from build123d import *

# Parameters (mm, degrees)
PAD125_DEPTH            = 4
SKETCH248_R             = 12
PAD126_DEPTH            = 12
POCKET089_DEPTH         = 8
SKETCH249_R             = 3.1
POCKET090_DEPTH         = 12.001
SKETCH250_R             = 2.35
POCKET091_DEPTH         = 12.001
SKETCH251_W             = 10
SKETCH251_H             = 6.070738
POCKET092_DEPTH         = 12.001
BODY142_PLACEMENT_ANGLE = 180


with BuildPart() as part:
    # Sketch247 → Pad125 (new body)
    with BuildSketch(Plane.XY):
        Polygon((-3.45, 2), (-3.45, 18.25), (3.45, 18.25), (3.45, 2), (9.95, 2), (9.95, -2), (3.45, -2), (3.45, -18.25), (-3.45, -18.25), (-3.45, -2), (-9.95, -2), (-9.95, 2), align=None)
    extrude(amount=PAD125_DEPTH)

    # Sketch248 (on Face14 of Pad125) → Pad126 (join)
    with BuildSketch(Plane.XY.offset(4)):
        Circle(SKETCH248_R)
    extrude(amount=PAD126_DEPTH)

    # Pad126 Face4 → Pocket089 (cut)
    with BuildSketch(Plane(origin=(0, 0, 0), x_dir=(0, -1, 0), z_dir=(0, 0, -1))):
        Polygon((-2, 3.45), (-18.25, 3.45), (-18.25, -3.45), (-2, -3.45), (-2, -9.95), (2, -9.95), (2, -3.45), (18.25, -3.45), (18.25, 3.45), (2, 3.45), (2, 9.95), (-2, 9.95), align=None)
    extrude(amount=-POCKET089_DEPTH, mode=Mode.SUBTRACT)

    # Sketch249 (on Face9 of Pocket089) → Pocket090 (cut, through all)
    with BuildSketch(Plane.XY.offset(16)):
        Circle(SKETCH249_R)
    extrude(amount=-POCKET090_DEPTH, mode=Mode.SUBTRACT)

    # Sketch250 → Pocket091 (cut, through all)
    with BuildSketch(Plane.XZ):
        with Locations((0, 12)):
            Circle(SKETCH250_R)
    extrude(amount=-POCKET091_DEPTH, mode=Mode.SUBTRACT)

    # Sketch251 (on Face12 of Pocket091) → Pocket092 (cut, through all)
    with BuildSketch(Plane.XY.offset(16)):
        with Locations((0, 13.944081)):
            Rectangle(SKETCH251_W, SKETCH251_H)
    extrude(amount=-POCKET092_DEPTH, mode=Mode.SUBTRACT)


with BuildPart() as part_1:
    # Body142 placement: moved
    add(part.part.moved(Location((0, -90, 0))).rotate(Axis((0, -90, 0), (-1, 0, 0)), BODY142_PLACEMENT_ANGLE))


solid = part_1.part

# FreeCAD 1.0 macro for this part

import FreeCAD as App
import Part
import Sketcher

doc = App.newDocument("Part")
body = doc.addObject("PartDesign::Body", "Body")

# Sketch on XY plane
sketch1 = body.newObject("Sketcher::SketchObject", "Sketch")
sketch1.AttachmentSupport = (doc.getObject("XY_Plane"), [""])
sketch1.MapMode = "FlatFace"
sketch1.addGeometry(Part.LineSegment(App.Vector(-3.5, 18.2, 0), App.Vector(-3.5, 2, 0)), False)
sketch1.addGeometry(Part.LineSegment(App.Vector(-3.5, 2, 0), App.Vector(-9.9, 2, 0)), False)
sketch1.addGeometry(Part.LineSegment(App.Vector(-9.9, 2, 0), App.Vector(-9.9, -2, 0)), False)
sketch1.addGeometry(Part.LineSegment(App.Vector(-9.9, -2, 0), App.Vector(-3.5, -2, 0)), False)
sketch1.addGeometry(Part.LineSegment(App.Vector(-3.5, -2, 0), App.Vector(-3.5, -18.2, 0)), False)
sketch1.addGeometry(Part.LineSegment(App.Vector(-3.5, -18.2, 0), App.Vector(3.5, -18.2, 0)), False)
sketch1.addGeometry(Part.LineSegment(App.Vector(3.5, -18.2, 0), App.Vector(3.5, -2, 0)), False)
sketch1.addGeometry(Part.LineSegment(App.Vector(3.5, -2, 0), App.Vector(9.9, -2, 0)), False)
sketch1.addGeometry(Part.LineSegment(App.Vector(9.9, -2, 0), App.Vector(9.9, 2, 0)), False)
sketch1.addGeometry(Part.LineSegment(App.Vector(9.9, 2, 0), App.Vector(3.5, 2, 0)), False)
sketch1.addGeometry(Part.LineSegment(App.Vector(3.5, 2, 0), App.Vector(3.5, 18.2, 0)), False)
sketch1.addGeometry(Part.LineSegment(App.Vector(3.5, 18.2, 0), App.Vector(-3.5, 18.2, 0)), False)
sketch1.addConstraint(Sketcher.Constraint("Coincident", 0, 2, 1, 1))
sketch1.addConstraint(Sketcher.Constraint("Coincident", 1, 2, 2, 1))
sketch1.addConstraint(Sketcher.Constraint("Coincident", 2, 2, 3, 1))
sketch1.addConstraint(Sketcher.Constraint("Coincident", 3, 2, 4, 1))
sketch1.addConstraint(Sketcher.Constraint("Coincident", 4, 2, 5, 1))
sketch1.addConstraint(Sketcher.Constraint("Coincident", 5, 2, 6, 1))
sketch1.addConstraint(Sketcher.Constraint("Coincident", 6, 2, 7, 1))
sketch1.addConstraint(Sketcher.Constraint("Coincident", 7, 2, 8, 1))
sketch1.addConstraint(Sketcher.Constraint("Coincident", 8, 2, 9, 1))
sketch1.addConstraint(Sketcher.Constraint("Coincident", 9, 2, 10, 1))
sketch1.addConstraint(Sketcher.Constraint("Coincident", 10, 2, 11, 1))
sketch1.addConstraint(Sketcher.Constraint("Coincident", 11, 2, 0, 1))
sketch1.addConstraint(Sketcher.Constraint("Vertical", 0))
sketch1.addConstraint(Sketcher.Constraint("Horizontal", 1))
sketch1.addConstraint(Sketcher.Constraint("Vertical", 2))
sketch1.addConstraint(Sketcher.Constraint("Horizontal", 3))
sketch1.addConstraint(Sketcher.Constraint("Vertical", 4))
sketch1.addConstraint(Sketcher.Constraint("Horizontal", 5))
sketch1.addConstraint(Sketcher.Constraint("Vertical", 6))
sketch1.addConstraint(Sketcher.Constraint("Horizontal", 7))
sketch1.addConstraint(Sketcher.Constraint("Vertical", 8))
sketch1.addConstraint(Sketcher.Constraint("Horizontal", 9))
sketch1.addConstraint(Sketcher.Constraint("Vertical", 10))
sketch1.addConstraint(Sketcher.Constraint("Horizontal", 11))
sketch1.addConstraint(Sketcher.Constraint("Symmetric", 0, 2, 6, 2, -1, 1))
sketch1.addConstraint(Sketcher.Constraint("Symmetric", 2, 2, 8, 2, -1, 1))
sketch1.addConstraint(Sketcher.Constraint("Symmetric", 4, 2, 10, 2, -1, 1))
sketch1.addConstraint(Sketcher.Constraint("Symmetric", 3, 2, 6, 2, -2))
sketch1.addConstraint(Sketcher.Constraint("DistanceY", 2, 2, 2, 1, 4.0))
sketch1.addConstraint(Sketcher.Constraint("DistanceX", 1, 2, 1, 1, 6.5))
sketch1.addConstraint(Sketcher.Constraint("DistanceX", 5, 1, 5, 2, 6.9))
sketch1.addConstraint(Sketcher.Constraint("DistanceY", 0, 2, 0, 1, 16.25))
pad1 = body.newObject("PartDesign::Pad", "Pad")
pad1.Profile = sketch1
pad1.Length = 4

# Sketch on XY plane
sketch2 = body.newObject("Sketcher::SketchObject", "Sketch001")
sketch2.AttachmentSupport = (doc.getObject("XY_Plane"), [""])
sketch2.MapMode = "FlatFace"
sketch2.AttachmentOffset = App.Placement(App.Vector(0, 0, 4), App.Rotation())
sketch2.addGeometry(Part.Circle(App.Vector(0, 0, 0), App.Vector(0, 0, 1), 12), False)
sketch2.addConstraint(Sketcher.Constraint("Coincident", 0, 3, -1, 1))
sketch2.addConstraint(Sketcher.Constraint("Diameter", 0, 24.0))
pad2 = body.newObject("PartDesign::Pad", "Pad001")
pad2.Profile = sketch2
pad2.Length = 12

# Sketch on XY plane
sketch3 = body.newObject("Sketcher::SketchObject", "Sketch002")
sketch3.AttachmentSupport = (doc.getObject("XY_Plane"), [""])
sketch3.MapMode = "FlatFace"
sketch3.addGeometry(Part.LineSegment(App.Vector(-3.5, 2, 0), App.Vector(-3.5, 18.2, 0)), False)
sketch3.addGeometry(Part.LineSegment(App.Vector(-3.5, 18.2, 0), App.Vector(3.5, 18.2, 0)), False)
sketch3.addGeometry(Part.LineSegment(App.Vector(3.5, 18.2, 0), App.Vector(3.5, 2, 0)), False)
sketch3.addGeometry(Part.LineSegment(App.Vector(3.5, 2, 0), App.Vector(9.9, 2, 0)), False)
sketch3.addGeometry(Part.LineSegment(App.Vector(9.9, 2, 0), App.Vector(9.9, -2, 0)), False)
sketch3.addGeometry(Part.LineSegment(App.Vector(9.9, -2, 0), App.Vector(3.5, -2, 0)), False)
sketch3.addGeometry(Part.LineSegment(App.Vector(3.5, -2, 0), App.Vector(3.5, -18.2, 0)), False)
sketch3.addGeometry(Part.LineSegment(App.Vector(3.5, -18.2, 0), App.Vector(-3.5, -18.2, 0)), False)
sketch3.addGeometry(Part.LineSegment(App.Vector(-3.5, -18.2, 0), App.Vector(-3.5, -2, 0)), False)
sketch3.addGeometry(Part.LineSegment(App.Vector(-3.5, -2, 0), App.Vector(-9.9, -2, 0)), False)
sketch3.addGeometry(Part.LineSegment(App.Vector(-9.9, -2, 0), App.Vector(-9.9, 2, 0)), False)
sketch3.addGeometry(Part.LineSegment(App.Vector(-9.9, 2, 0), App.Vector(-3.5, 2, 0)), False)
sketch3.addConstraint(Sketcher.Constraint("Coincident", 0, 2, 1, 1))
sketch3.addConstraint(Sketcher.Constraint("Coincident", 1, 2, 2, 1))
sketch3.addConstraint(Sketcher.Constraint("Coincident", 2, 2, 3, 1))
sketch3.addConstraint(Sketcher.Constraint("Coincident", 3, 2, 4, 1))
sketch3.addConstraint(Sketcher.Constraint("Coincident", 4, 2, 5, 1))
sketch3.addConstraint(Sketcher.Constraint("Coincident", 5, 2, 6, 1))
sketch3.addConstraint(Sketcher.Constraint("Coincident", 6, 2, 7, 1))
sketch3.addConstraint(Sketcher.Constraint("Coincident", 7, 2, 8, 1))
sketch3.addConstraint(Sketcher.Constraint("Coincident", 8, 2, 9, 1))
sketch3.addConstraint(Sketcher.Constraint("Coincident", 9, 2, 10, 1))
sketch3.addConstraint(Sketcher.Constraint("Coincident", 10, 2, 11, 1))
sketch3.addConstraint(Sketcher.Constraint("Coincident", 11, 2, 0, 1))
sketch3.addConstraint(Sketcher.Constraint("Vertical", 0))
sketch3.addConstraint(Sketcher.Constraint("Horizontal", 1))
sketch3.addConstraint(Sketcher.Constraint("Vertical", 2))
sketch3.addConstraint(Sketcher.Constraint("Horizontal", 3))
sketch3.addConstraint(Sketcher.Constraint("Vertical", 4))
sketch3.addConstraint(Sketcher.Constraint("Horizontal", 5))
sketch3.addConstraint(Sketcher.Constraint("Vertical", 6))
sketch3.addConstraint(Sketcher.Constraint("Horizontal", 7))
sketch3.addConstraint(Sketcher.Constraint("Vertical", 8))
sketch3.addConstraint(Sketcher.Constraint("Horizontal", 9))
sketch3.addConstraint(Sketcher.Constraint("Vertical", 10))
sketch3.addConstraint(Sketcher.Constraint("Horizontal", 11))
sketch3.addConstraint(Sketcher.Constraint("Symmetric", 0, 2, 6, 2, -1, 1))
sketch3.addConstraint(Sketcher.Constraint("Symmetric", 2, 2, 8, 2, -1, 1))
sketch3.addConstraint(Sketcher.Constraint("Symmetric", 4, 2, 10, 2, -1, 1))
sketch3.addConstraint(Sketcher.Constraint("Symmetric", 5, 2, 8, 2, -2))
sketch3.addConstraint(Sketcher.Constraint("DistanceY", 4, 2, 4, 1, 4.0))
sketch3.addConstraint(Sketcher.Constraint("DistanceX", 1, 1, 1, 2, 6.9))
sketch3.addConstraint(Sketcher.Constraint("DistanceX", 3, 1, 3, 2, 6.5))
sketch3.addConstraint(Sketcher.Constraint("DistanceY", 0, 1, 0, 2, 16.25))
pocket1 = body.newObject("PartDesign::Pocket", "Pocket")
pocket1.Profile = sketch3
pocket1.Length = 8
pocket1.Reversed = True

# Sketch on XY plane
sketch4 = body.newObject("Sketcher::SketchObject", "Sketch003")
sketch4.AttachmentSupport = (doc.getObject("XY_Plane"), [""])
sketch4.MapMode = "FlatFace"
sketch4.AttachmentOffset = App.Placement(App.Vector(0, 0, 16), App.Rotation())
sketch4.addGeometry(Part.Circle(App.Vector(0, 0, 0), App.Vector(0, 0, 1), 3.1), False)
sketch4.addConstraint(Sketcher.Constraint("Coincident", 0, 3, -1, 1))
sketch4.addConstraint(Sketcher.Constraint("Diameter", 0, 6.2))
pocket2 = body.newObject("PartDesign::Pocket", "Pocket001")
pocket2.Profile = sketch4
pocket2.Type = "ThroughAll"

# Sketch on XZ plane
sketch5 = body.newObject("Sketcher::SketchObject", "Sketch004")
sketch5.AttachmentSupport = (doc.getObject("XZ_Plane"), [""])
sketch5.MapMode = "FlatFace"
sketch5.addGeometry(Part.Circle(App.Vector(0, 12, 0), App.Vector(0, 0, 1), 2.4), False)
sketch5.addConstraint(Sketcher.Constraint("PointOnObject", 0, 3, -2))
sketch5.addConstraint(Sketcher.Constraint("Diameter", 0, 4.7))
sketch5.addConstraint(Sketcher.Constraint("DistanceY", -1, 1, 0, 3, 12.0))
pocket3 = body.newObject("PartDesign::Pocket", "Pocket002")
pocket3.Profile = sketch5
pocket3.Type = "ThroughAll"

# Sketch on XY plane
sketch6 = body.newObject("Sketcher::SketchObject", "Sketch005")
sketch6.AttachmentSupport = (doc.getObject("XY_Plane"), [""])
sketch6.MapMode = "FlatFace"
sketch6.AttachmentOffset = App.Placement(App.Vector(0, 0, 16), App.Rotation())
sketch6.addGeometry(Part.LineSegment(App.Vector(-5, 17, 0), App.Vector(-5, 11, 0)), False)
sketch6.addGeometry(Part.LineSegment(App.Vector(-5, 11, 0), App.Vector(5, 11, 0)), False)
sketch6.addGeometry(Part.LineSegment(App.Vector(5, 11, 0), App.Vector(5, 17, 0)), False)
sketch6.addGeometry(Part.LineSegment(App.Vector(5, 17, 0), App.Vector(-5, 17, 0)), False)
sketch6.addConstraint(Sketcher.Constraint("Coincident", 0, 2, 1, 1))
sketch6.addConstraint(Sketcher.Constraint("Coincident", 1, 2, 2, 1))
sketch6.addConstraint(Sketcher.Constraint("Coincident", 2, 2, 3, 1))
sketch6.addConstraint(Sketcher.Constraint("Coincident", 3, 2, 0, 1))
sketch6.addConstraint(Sketcher.Constraint("Vertical", 0))
sketch6.addConstraint(Sketcher.Constraint("Horizontal", 1))
sketch6.addConstraint(Sketcher.Constraint("Vertical", 2))
sketch6.addConstraint(Sketcher.Constraint("Horizontal", 3))
sketch6.addConstraint(Sketcher.Constraint("DistanceX", 1, 1, 1, 2, 10.0))
sketch6.addConstraint(Sketcher.Constraint("DistanceX", 0, 2, -1, 1, 5.0))
sketch6.addConstraint(Sketcher.Constraint("DistanceY", 0, 2, 0, 1, 6.070738))
sketch6.addConstraint(Sketcher.Constraint("DistanceY", -1, 1, 2, 2, 16.97945))
pocket4 = body.newObject("PartDesign::Pocket", "Pocket003")
pocket4.Profile = sketch6
pocket4.Type = "ThroughAll"
body2 = doc.addObject("PartDesign::Body", "Body001")
doc.recompute()

body.Placement = App.Placement(App.Vector(0, -90, 0), App.Rotation(App.Vector(-1, 0, 0), 180))
boolean = body2.newObject("PartDesign::Boolean", "Boolean")
boolean.Type = "Fuse"
boolean.addObjects([body])

doc.recompute()
